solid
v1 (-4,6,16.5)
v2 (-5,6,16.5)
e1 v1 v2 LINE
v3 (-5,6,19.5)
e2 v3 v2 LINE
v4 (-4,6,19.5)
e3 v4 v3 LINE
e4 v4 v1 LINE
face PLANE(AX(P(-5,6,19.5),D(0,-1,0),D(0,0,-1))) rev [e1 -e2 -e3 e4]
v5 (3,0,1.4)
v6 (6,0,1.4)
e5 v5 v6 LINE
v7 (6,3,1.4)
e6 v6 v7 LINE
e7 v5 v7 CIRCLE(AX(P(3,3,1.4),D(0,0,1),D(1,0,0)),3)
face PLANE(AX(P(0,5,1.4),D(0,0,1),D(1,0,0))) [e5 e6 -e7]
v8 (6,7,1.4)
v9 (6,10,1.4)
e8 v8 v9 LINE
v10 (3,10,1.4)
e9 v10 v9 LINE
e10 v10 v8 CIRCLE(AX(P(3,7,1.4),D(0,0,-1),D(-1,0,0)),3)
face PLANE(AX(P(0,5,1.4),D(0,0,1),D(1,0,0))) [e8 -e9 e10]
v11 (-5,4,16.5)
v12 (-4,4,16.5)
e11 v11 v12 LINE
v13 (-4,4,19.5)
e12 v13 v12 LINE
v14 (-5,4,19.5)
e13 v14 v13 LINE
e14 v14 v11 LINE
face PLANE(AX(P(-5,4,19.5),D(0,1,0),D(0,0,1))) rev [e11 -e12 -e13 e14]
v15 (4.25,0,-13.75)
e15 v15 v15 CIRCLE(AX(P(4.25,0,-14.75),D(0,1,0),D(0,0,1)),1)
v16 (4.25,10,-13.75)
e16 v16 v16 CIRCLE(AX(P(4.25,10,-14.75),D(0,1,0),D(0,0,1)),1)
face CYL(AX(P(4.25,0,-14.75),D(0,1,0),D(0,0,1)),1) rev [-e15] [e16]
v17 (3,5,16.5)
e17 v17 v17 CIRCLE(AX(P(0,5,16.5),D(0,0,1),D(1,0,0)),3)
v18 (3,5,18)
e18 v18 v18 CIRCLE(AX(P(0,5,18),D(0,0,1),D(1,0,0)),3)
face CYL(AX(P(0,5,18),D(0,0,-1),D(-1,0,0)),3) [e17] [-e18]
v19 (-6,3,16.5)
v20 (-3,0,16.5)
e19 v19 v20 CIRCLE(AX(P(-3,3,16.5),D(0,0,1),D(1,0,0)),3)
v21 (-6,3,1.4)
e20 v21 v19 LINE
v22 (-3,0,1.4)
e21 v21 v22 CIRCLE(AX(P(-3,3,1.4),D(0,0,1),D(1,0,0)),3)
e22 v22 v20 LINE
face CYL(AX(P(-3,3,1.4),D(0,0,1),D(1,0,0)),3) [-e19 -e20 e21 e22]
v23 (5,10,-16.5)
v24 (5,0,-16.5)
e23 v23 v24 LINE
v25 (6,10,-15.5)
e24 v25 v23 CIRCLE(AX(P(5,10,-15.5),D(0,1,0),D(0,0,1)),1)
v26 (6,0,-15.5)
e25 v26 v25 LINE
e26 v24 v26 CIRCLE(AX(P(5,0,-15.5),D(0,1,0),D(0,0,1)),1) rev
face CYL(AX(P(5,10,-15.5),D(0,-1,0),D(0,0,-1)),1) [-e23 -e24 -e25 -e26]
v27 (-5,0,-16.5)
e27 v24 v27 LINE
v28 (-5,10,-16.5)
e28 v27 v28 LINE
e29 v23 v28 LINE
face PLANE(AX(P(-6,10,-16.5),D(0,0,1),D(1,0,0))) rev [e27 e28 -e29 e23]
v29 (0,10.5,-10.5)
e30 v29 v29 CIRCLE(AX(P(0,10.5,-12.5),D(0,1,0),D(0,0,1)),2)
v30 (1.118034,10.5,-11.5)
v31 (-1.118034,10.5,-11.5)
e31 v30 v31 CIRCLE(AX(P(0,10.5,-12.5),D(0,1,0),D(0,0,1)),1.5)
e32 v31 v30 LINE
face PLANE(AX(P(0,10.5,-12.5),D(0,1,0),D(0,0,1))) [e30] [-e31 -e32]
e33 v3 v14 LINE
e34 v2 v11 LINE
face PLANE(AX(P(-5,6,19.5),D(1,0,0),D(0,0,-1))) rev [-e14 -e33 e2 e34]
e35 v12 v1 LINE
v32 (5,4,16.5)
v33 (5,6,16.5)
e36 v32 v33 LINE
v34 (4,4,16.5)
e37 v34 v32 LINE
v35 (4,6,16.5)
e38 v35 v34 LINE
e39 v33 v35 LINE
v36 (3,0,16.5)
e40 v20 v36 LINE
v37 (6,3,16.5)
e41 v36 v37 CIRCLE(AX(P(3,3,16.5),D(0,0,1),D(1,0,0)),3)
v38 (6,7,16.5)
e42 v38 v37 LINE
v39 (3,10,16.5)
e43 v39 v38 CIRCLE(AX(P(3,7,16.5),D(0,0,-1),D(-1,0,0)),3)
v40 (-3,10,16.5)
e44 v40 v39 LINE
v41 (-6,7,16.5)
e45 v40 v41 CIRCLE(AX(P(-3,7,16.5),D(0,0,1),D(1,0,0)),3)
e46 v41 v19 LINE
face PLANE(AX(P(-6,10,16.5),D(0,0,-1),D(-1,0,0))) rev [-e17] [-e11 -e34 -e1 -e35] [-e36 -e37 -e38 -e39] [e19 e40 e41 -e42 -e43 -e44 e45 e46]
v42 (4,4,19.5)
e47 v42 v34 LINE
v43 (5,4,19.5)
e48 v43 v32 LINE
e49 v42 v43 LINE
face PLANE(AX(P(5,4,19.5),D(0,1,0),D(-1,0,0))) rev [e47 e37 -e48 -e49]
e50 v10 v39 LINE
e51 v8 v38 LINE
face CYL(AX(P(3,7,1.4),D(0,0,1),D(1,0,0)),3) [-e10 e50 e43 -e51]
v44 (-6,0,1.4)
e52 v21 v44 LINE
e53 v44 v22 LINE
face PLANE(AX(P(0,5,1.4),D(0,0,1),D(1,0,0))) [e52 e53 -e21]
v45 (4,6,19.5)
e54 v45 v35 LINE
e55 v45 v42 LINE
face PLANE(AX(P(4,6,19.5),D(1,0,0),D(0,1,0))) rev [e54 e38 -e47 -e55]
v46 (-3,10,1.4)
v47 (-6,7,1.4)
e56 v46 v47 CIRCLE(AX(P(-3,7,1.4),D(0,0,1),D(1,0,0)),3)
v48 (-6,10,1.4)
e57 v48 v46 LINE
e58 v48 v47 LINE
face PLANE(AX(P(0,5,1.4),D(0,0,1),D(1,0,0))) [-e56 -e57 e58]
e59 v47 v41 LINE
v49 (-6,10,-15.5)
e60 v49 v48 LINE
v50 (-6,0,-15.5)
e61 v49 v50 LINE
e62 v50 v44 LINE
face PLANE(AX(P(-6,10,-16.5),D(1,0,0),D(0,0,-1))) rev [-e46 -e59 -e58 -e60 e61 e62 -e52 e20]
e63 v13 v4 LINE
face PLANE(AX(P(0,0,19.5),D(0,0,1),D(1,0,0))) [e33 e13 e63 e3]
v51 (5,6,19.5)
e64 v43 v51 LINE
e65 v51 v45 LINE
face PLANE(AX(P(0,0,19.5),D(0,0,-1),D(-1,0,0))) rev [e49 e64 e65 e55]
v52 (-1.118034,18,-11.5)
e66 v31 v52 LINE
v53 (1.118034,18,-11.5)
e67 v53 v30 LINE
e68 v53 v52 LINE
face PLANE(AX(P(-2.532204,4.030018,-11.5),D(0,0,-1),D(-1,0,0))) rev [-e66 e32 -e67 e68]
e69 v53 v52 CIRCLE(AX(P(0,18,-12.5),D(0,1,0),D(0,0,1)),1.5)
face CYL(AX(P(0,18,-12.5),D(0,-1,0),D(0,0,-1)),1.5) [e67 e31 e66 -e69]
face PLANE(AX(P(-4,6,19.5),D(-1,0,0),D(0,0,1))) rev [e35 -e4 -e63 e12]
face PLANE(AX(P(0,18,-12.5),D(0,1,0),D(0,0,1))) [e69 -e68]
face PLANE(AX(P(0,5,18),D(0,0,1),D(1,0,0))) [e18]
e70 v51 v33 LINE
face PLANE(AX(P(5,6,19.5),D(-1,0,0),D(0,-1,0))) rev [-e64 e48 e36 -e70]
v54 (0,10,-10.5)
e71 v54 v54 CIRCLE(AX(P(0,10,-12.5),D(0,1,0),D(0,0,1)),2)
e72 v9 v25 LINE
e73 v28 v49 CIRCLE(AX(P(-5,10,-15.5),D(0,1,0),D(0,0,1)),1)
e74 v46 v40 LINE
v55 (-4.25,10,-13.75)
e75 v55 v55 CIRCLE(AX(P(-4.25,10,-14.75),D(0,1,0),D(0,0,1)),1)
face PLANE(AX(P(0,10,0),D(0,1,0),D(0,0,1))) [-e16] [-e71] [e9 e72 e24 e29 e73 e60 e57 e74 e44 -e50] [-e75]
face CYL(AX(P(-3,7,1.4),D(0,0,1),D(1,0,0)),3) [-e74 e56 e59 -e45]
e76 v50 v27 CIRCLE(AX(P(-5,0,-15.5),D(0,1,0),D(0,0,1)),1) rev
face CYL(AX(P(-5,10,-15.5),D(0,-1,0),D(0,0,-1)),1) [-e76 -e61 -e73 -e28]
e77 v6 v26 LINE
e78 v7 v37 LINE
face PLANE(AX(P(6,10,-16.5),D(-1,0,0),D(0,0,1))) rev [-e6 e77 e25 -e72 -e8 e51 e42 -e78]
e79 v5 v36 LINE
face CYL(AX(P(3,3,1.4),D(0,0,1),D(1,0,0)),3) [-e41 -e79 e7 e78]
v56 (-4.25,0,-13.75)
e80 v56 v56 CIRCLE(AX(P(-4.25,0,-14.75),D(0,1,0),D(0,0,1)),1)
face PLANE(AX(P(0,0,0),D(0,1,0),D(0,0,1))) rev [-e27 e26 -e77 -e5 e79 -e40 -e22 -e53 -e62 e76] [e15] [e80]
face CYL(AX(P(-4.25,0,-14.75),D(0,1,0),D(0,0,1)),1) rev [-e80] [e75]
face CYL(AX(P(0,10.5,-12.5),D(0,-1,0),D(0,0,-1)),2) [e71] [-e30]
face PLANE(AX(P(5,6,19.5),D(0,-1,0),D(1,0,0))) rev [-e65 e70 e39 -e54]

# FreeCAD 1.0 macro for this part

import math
import FreeCAD as App
import Part
import Sketcher


def edges_at(feature, points):
    """Names of the edges that pass closest to the given points."""
    edges = feature.Shape.Edges
    near = lambda p: min(range(len(edges)), key=lambda i: edges[i].distToShape(Part.Vertex(*p))[0])
    return sorted({f"Edge{near(p) + 1}" for p in points})

doc = App.newDocument("Part")
body = doc.addObject("PartDesign::Body", "Body")

sketch1 = doc.addObject("Sketcher::SketchObject", "Sketch")
body.addObject(sketch1)
sketch1.AttachmentSupport = (doc.XZ_Plane, [""])
sketch1.MapMode = "FlatFace"
sketch1.addGeometry([
    Part.LineSegment(App.Vector(-6, -16, 0), App.Vector(-6, 16, 0)),
    Part.LineSegment(App.Vector(-6, 16, 0), App.Vector(6, 16, 0)),
    Part.LineSegment(App.Vector(6, 16, 0), App.Vector(6, -16, 0)),
    Part.LineSegment(App.Vector(6, -16, 0), App.Vector(-6, -16, 0)),
], False)
sketch1.addConstraint([
    Sketcher.Constraint("Coincident", 0, 2, 1, 1),
    Sketcher.Constraint("Coincident", 1, 2, 2, 1),
    Sketcher.Constraint("Coincident", 2, 2, 3, 1),
    Sketcher.Constraint("Coincident", 3, 2, 0, 1),
    Sketcher.Constraint("Vertical", 0),
    Sketcher.Constraint("Horizontal", 1),
    Sketcher.Constraint("Vertical", 2),
    Sketcher.Constraint("Horizontal", 3),
    Sketcher.Constraint("Symmetric", 0, 2, 2, 2, -1, 1),
    Sketcher.Constraint("DistanceX", 1, 1, 1, 2, 12.0),
    Sketcher.Constraint("DistanceY", 0, 1, 0, 2, 33.0),
])
pad1 = doc.addObject("PartDesign::Pad", "Pad")
body.addObject(pad1)
pad1.Profile = sketch1
pad1.Length = 10
pad1.Reversed = True

sketch2 = doc.addObject("Sketcher::SketchObject", "Sketch001")
body.addObject(sketch2)
sketch2.AttachmentSupport = (doc.XY_Plane, [""])
sketch2.MapMode = "FlatFace"
sketch2.AttachmentOffset = App.Placement(App.Vector(0, 0, 16.5), App.Rotation())
sketch2.addGeometry([
    Part.LineSegment(App.Vector(-10.7, 14.7, 0), App.Vector(-10.7, -4.7, 0)),
    Part.LineSegment(App.Vector(-10.7, -4.7, 0), App.Vector(10.7, -4.7, 0)),
    Part.LineSegment(App.Vector(10.7, -4.7, 0), App.Vector(10.7, 14.7, 0)),
    Part.LineSegment(App.Vector(10.7, 14.7, 0), App.Vector(-10.7, 14.7, 0)),
    Part.ArcOfCircle(Part.Circle(App.Vector(-3, 7, 0), App.Vector(0, 0, 1), 3), math.radians(90), math.radians(180)),
    Part.LineSegment(App.Vector(-3, 10, 0), App.Vector(3, 10, 0)),
    Part.ArcOfCircle(Part.Circle(App.Vector(3, 7, 0), App.Vector(0, 0, 1), 3), math.radians(0), math.radians(90)),
    Part.LineSegment(App.Vector(6, 7, 0), App.Vector(6, 3, 0)),
    Part.ArcOfCircle(Part.Circle(App.Vector(3, 3, 0), App.Vector(0, 0, 1), 3), math.radians(-90), math.radians(0)),
    Part.LineSegment(App.Vector(3, 0, 0), App.Vector(-3, 0, 0)),
    Part.ArcOfCircle(Part.Circle(App.Vector(-3, 3, 0), App.Vector(0, 0, 1), 3), math.radians(180), math.radians(270)),
    Part.LineSegment(App.Vector(-6, 3, 0), App.Vector(-6, 7, 0)),
], False)
sketch2.addConstraint([
    Sketcher.Constraint("Coincident", 0, 2, 1, 1),
    Sketcher.Constraint("Coincident", 1, 2, 2, 1),
    Sketcher.Constraint("Coincident", 2, 2, 3, 1),
    Sketcher.Constraint("Coincident", 3, 2, 0, 1),
    Sketcher.Constraint("Tangent", 4, 1, 5, 1),
    Sketcher.Constraint("Tangent", 5, 2, 6, 2),
    Sketcher.Constraint("Tangent", 6, 1, 7, 1),
    Sketcher.Constraint("Tangent", 7, 2, 8, 2),
    Sketcher.Constraint("Tangent", 8, 1, 9, 1),
    Sketcher.Constraint("Tangent", 9, 2, 10, 2),
    Sketcher.Constraint("Tangent", 10, 1, 11, 1),
    Sketcher.Constraint("Tangent", 11, 2, 4, 2),
    Sketcher.Constraint("Vertical", 0),
    Sketcher.Constraint("Horizontal", 1),
    Sketcher.Constraint("Vertical", 2),
    Sketcher.Constraint("Horizontal", 3),
    Sketcher.Constraint("Horizontal", 5),
    Sketcher.Constraint("Vertical", 7),
    Sketcher.Constraint("Horizontal", 9),
    Sketcher.Constraint("Vertical", 11),
    Sketcher.Constraint("Equal", 4, 6),
    Sketcher.Constraint("Equal", 6, 8),
    Sketcher.Constraint("Equal", 8, 10),
    Sketcher.Constraint("Symmetric", 8, 1, 9, 2, -1, 1),
    Sketcher.Constraint("Radius", 4, 3.0),
    Sketcher.Constraint("DistanceX", 5, 1, 5, 2, 6.0),
    Sketcher.Constraint("DistanceY", 7, 2, 7, 1, 4.0),
    Sketcher.Constraint("DistanceX", 1, 1, 1, 2, 21.302),
    Sketcher.Constraint("DistanceY", 0, 2, 0, 1, 19.302),
    Sketcher.Constraint("DistanceX", 0, 2, -1, 1, 10.651),
    Sketcher.Constraint("DistanceY", 0, 2, -1, 1, 4.651),
])
pocket1 = doc.addObject("PartDesign::Pocket", "Pocket")
body.addObject(pocket1)
pocket1.Profile = sketch2
pocket1.Length = 15.1

sketch3 = doc.addObject("Sketcher::SketchObject", "Sketch002")
body.addObject(sketch3)
sketch3.AttachmentSupport = (doc.XY_Plane, [""])
sketch3.MapMode = "FlatFace"
sketch3.AttachmentOffset = App.Placement(App.Vector(0, 0, 16.5), App.Rotation())
sketch3.addGeometry(Part.Circle(App.Vector(0, 5, 0), App.Vector(0, 0, 1), 3), False)
sketch3.addConstraint([
    Sketcher.Constraint("PointOnObject", 0, 3, -2),
    Sketcher.Constraint("Diameter", 0, 6.0),
    Sketcher.Constraint("DistanceY", -1, 1, 0, 3, 5.0),
])
pad2 = doc.addObject("PartDesign::Pad", "Pad001")
body.addObject(pad2)
pad2.Profile = sketch3
pad2.Length = 1.5

sketch4 = doc.addObject("Sketcher::SketchObject", "Sketch003")
body.addObject(sketch4)
sketch4.AttachmentSupport = (doc.XY_Plane, [""])
sketch4.MapMode = "FlatFace"
sketch4.AttachmentOffset = App.Placement(App.Vector(0, 0, 16.5), App.Rotation())
sketch4.addGeometry([
    Part.LineSegment(App.Vector(4, 6, 0), App.Vector(4, 4, 0)),
    Part.LineSegment(App.Vector(4, 4, 0), App.Vector(5, 4, 0)),
    Part.LineSegment(App.Vector(5, 4, 0), App.Vector(5, 6, 0)),
    Part.LineSegment(App.Vector(5, 6, 0), App.Vector(4, 6, 0)),
    Part.LineSegment(App.Vector(-5, 6, 0), App.Vector(-5, 4, 0)),
    Part.LineSegment(App.Vector(-5, 4, 0), App.Vector(-4, 4, 0)),
    Part.LineSegment(App.Vector(-4, 4, 0), App.Vector(-4, 6, 0)),
    Part.LineSegment(App.Vector(-4, 6, 0), App.Vector(-5, 6, 0)),
], False)
sketch4.addConstraint([
    Sketcher.Constraint("Coincident", 0, 2, 1, 1),
    Sketcher.Constraint("Coincident", 1, 2, 2, 1),
    Sketcher.Constraint("Coincident", 2, 2, 3, 1),
    Sketcher.Constraint("Coincident", 3, 2, 0, 1),
    Sketcher.Constraint("Coincident", 4, 2, 5, 1),
    Sketcher.Constraint("Coincident", 5, 2, 6, 1),
    Sketcher.Constraint("Coincident", 6, 2, 7, 1),
    Sketcher.Constraint("Coincident", 7, 2, 4, 1),
    Sketcher.Constraint("Vertical", 0),
    Sketcher.Constraint("Horizontal", 1),
    Sketcher.Constraint("Vertical", 2),
    Sketcher.Constraint("Horizontal", 3),
    Sketcher.Constraint("Vertical", 4),
    Sketcher.Constraint("Horizontal", 5),
    Sketcher.Constraint("Vertical", 6),
    Sketcher.Constraint("Horizontal", 7),
    Sketcher.Constraint("Symmetric", 1, 2, 4, 2, -2),
    Sketcher.Constraint("Symmetric", 3, 2, 6, 2, -2),
    Sketcher.Constraint("DistanceX", 1, 1, 1, 2, 1.0),
    Sketcher.Constraint("DistanceY", 0, 2, 0, 1, 2.0),
    Sketcher.Constraint("DistanceX", -1, 1, 0, 2, 4.0),
    Sketcher.Constraint("DistanceY", -1, 1, 0, 2, 4.0),
])
pad3 = doc.addObject("PartDesign::Pad", "Pad002")
body.addObject(pad3)
pad3.Profile = sketch4
pad3.Length = 3

sketch5 = doc.addObject("Sketcher::SketchObject", "Sketch004")
body.addObject(sketch5)
sketch5.AttachmentSupport = (doc.XZ_Plane, [""])
sketch5.MapMode = "FlatFace"
sketch5.AttachmentOffset = App.Placement(App.Vector(0, 0, -10), App.Rotation())
sketch5.addGeometry(Part.Circle(App.Vector(0, -12.5, 0), App.Vector(0, 0, 1), 2), False)
sketch5.addConstraint([
    Sketcher.Constraint("PointOnObject", 0, 3, -2),
    Sketcher.Constraint("Diameter", 0, 4.0),
    Sketcher.Constraint("DistanceY", 0, 3, -1, 1, 12.5),
])
pad4 = doc.addObject("PartDesign::Pad", "Pad003")
body.addObject(pad4)
pad4.Profile = sketch5
pad4.Length = 0.5
pad4.Reversed = True

sketch6 = doc.addObject("Sketcher::SketchObject", "Sketch005")
body.addObject(sketch6)
sketch6.AttachmentSupport = (doc.XZ_Plane, [""])
sketch6.MapMode = "FlatFace"
sketch6.AttachmentOffset = App.Placement(App.Vector(0, 0, -10.5), App.Rotation())
sketch6.addGeometry(Part.Circle(App.Vector(0, -12.5, 0), App.Vector(0, 0, 1), 1.5), False)
sketch6.addConstraint([
    Sketcher.Constraint("PointOnObject", 0, 3, -2),
    Sketcher.Constraint("Diameter", 0, 3.0),
    Sketcher.Constraint("DistanceY", 0, 3, -1, 1, 12.5),
])
pad5 = doc.addObject("PartDesign::Pad", "Pad004")
body.addObject(pad5)
pad5.Profile = sketch6
pad5.Length = 7.5
pad5.Reversed = True

sketch7 = doc.addObject("Sketcher::SketchObject", "Sketch006")
body.addObject(sketch7)
sketch7.AttachmentSupport = (doc.XZ_Plane, [""])
sketch7.MapMode = "FlatFace"
sketch7.AttachmentOffset = App.Placement(App.Vector(0, 0, -18), App.Rotation())
sketch7.addGeometry([
    Part.LineSegment(App.Vector(-2.5, -11.5, 0), App.Vector(-2.5, -8.8, 0)),
    Part.LineSegment(App.Vector(-2.5, -8.8, 0), App.Vector(3.3, -8.8, 0)),
    Part.LineSegment(App.Vector(3.3, -8.8, 0), App.Vector(3.3, -11.5, 0)),
    Part.LineSegment(App.Vector(3.3, -11.5, 0), App.Vector(-2.5, -11.5, 0)),
], False)
sketch7.addConstraint([
    Sketcher.Constraint("Coincident", 0, 2, 1, 1),
    Sketcher.Constraint("Coincident", 1, 2, 2, 1),
    Sketcher.Constraint("Coincident", 2, 2, 3, 1),
    Sketcher.Constraint("Coincident", 3, 2, 0, 1),
    Sketcher.Constraint("Vertical", 0),
    Sketcher.Constraint("Horizontal", 1),
    Sketcher.Constraint("Vertical", 2),
    Sketcher.Constraint("Horizontal", 3),
    Sketcher.Constraint("DistanceY", 2, 2, -1, 1, 11.5),
    Sketcher.Constraint("DistanceX", 1, 1, 1, 2, 5.87025),
    Sketcher.Constraint("DistanceY", 0, 1, 0, 2, 2.720448),
    Sketcher.Constraint("DistanceX", 0, 2, -1, 1, 2.532204),
])
pocket2 = doc.addObject("PartDesign::Pocket", "Pocket001")
body.addObject(pocket2)
pocket2.Profile = sketch7
pocket2.Length = 7.5
pocket2.Reversed = True
doc.recompute()

fillet = doc.addObject("PartDesign::Fillet", "Fillet")
body.addObject(fillet)
fillet.Base = (pocket2, edges_at(pocket2, [(-6, 5, -16.5), (6, 5, -16.5)]))
fillet.Radius = 1

sketch8 = doc.addObject("Sketcher::SketchObject", "Sketch007")
body.addObject(sketch8)
sketch8.AttachmentSupport = (doc.XZ_Plane, [""])
sketch8.MapMode = "FlatFace"
sketch8.AttachmentOffset = App.Placement(App.Vector(0, 0, -10), App.Rotation())
sketch8.addGeometry([
    Part.Circle(App.Vector(-4.2, -14.8, 0), App.Vector(0, 0, 1), 1),
    Part.Circle(App.Vector(4.2, -14.8, 0), App.Vector(0, 0, 1), 1),
], False)
sketch8.addConstraint([
    Sketcher.Constraint("Equal", 0, 1),
    Sketcher.Constraint("Symmetric", 0, 3, 1, 3, -2),
    Sketcher.Constraint("Diameter", 0, 2.0),
    Sketcher.Constraint("DistanceX", 0, 3, 1, 3, 8.5),
    Sketcher.Constraint("DistanceY", 0, 3, -1, 1, 14.75),
])
pocket3 = doc.addObject("PartDesign::Pocket", "Pocket002")
body.addObject(pocket3)
pocket3.Profile = sketch8
pocket3.Type = "ThroughAll"
pocket3.Reversed = True

doc.recompute()
